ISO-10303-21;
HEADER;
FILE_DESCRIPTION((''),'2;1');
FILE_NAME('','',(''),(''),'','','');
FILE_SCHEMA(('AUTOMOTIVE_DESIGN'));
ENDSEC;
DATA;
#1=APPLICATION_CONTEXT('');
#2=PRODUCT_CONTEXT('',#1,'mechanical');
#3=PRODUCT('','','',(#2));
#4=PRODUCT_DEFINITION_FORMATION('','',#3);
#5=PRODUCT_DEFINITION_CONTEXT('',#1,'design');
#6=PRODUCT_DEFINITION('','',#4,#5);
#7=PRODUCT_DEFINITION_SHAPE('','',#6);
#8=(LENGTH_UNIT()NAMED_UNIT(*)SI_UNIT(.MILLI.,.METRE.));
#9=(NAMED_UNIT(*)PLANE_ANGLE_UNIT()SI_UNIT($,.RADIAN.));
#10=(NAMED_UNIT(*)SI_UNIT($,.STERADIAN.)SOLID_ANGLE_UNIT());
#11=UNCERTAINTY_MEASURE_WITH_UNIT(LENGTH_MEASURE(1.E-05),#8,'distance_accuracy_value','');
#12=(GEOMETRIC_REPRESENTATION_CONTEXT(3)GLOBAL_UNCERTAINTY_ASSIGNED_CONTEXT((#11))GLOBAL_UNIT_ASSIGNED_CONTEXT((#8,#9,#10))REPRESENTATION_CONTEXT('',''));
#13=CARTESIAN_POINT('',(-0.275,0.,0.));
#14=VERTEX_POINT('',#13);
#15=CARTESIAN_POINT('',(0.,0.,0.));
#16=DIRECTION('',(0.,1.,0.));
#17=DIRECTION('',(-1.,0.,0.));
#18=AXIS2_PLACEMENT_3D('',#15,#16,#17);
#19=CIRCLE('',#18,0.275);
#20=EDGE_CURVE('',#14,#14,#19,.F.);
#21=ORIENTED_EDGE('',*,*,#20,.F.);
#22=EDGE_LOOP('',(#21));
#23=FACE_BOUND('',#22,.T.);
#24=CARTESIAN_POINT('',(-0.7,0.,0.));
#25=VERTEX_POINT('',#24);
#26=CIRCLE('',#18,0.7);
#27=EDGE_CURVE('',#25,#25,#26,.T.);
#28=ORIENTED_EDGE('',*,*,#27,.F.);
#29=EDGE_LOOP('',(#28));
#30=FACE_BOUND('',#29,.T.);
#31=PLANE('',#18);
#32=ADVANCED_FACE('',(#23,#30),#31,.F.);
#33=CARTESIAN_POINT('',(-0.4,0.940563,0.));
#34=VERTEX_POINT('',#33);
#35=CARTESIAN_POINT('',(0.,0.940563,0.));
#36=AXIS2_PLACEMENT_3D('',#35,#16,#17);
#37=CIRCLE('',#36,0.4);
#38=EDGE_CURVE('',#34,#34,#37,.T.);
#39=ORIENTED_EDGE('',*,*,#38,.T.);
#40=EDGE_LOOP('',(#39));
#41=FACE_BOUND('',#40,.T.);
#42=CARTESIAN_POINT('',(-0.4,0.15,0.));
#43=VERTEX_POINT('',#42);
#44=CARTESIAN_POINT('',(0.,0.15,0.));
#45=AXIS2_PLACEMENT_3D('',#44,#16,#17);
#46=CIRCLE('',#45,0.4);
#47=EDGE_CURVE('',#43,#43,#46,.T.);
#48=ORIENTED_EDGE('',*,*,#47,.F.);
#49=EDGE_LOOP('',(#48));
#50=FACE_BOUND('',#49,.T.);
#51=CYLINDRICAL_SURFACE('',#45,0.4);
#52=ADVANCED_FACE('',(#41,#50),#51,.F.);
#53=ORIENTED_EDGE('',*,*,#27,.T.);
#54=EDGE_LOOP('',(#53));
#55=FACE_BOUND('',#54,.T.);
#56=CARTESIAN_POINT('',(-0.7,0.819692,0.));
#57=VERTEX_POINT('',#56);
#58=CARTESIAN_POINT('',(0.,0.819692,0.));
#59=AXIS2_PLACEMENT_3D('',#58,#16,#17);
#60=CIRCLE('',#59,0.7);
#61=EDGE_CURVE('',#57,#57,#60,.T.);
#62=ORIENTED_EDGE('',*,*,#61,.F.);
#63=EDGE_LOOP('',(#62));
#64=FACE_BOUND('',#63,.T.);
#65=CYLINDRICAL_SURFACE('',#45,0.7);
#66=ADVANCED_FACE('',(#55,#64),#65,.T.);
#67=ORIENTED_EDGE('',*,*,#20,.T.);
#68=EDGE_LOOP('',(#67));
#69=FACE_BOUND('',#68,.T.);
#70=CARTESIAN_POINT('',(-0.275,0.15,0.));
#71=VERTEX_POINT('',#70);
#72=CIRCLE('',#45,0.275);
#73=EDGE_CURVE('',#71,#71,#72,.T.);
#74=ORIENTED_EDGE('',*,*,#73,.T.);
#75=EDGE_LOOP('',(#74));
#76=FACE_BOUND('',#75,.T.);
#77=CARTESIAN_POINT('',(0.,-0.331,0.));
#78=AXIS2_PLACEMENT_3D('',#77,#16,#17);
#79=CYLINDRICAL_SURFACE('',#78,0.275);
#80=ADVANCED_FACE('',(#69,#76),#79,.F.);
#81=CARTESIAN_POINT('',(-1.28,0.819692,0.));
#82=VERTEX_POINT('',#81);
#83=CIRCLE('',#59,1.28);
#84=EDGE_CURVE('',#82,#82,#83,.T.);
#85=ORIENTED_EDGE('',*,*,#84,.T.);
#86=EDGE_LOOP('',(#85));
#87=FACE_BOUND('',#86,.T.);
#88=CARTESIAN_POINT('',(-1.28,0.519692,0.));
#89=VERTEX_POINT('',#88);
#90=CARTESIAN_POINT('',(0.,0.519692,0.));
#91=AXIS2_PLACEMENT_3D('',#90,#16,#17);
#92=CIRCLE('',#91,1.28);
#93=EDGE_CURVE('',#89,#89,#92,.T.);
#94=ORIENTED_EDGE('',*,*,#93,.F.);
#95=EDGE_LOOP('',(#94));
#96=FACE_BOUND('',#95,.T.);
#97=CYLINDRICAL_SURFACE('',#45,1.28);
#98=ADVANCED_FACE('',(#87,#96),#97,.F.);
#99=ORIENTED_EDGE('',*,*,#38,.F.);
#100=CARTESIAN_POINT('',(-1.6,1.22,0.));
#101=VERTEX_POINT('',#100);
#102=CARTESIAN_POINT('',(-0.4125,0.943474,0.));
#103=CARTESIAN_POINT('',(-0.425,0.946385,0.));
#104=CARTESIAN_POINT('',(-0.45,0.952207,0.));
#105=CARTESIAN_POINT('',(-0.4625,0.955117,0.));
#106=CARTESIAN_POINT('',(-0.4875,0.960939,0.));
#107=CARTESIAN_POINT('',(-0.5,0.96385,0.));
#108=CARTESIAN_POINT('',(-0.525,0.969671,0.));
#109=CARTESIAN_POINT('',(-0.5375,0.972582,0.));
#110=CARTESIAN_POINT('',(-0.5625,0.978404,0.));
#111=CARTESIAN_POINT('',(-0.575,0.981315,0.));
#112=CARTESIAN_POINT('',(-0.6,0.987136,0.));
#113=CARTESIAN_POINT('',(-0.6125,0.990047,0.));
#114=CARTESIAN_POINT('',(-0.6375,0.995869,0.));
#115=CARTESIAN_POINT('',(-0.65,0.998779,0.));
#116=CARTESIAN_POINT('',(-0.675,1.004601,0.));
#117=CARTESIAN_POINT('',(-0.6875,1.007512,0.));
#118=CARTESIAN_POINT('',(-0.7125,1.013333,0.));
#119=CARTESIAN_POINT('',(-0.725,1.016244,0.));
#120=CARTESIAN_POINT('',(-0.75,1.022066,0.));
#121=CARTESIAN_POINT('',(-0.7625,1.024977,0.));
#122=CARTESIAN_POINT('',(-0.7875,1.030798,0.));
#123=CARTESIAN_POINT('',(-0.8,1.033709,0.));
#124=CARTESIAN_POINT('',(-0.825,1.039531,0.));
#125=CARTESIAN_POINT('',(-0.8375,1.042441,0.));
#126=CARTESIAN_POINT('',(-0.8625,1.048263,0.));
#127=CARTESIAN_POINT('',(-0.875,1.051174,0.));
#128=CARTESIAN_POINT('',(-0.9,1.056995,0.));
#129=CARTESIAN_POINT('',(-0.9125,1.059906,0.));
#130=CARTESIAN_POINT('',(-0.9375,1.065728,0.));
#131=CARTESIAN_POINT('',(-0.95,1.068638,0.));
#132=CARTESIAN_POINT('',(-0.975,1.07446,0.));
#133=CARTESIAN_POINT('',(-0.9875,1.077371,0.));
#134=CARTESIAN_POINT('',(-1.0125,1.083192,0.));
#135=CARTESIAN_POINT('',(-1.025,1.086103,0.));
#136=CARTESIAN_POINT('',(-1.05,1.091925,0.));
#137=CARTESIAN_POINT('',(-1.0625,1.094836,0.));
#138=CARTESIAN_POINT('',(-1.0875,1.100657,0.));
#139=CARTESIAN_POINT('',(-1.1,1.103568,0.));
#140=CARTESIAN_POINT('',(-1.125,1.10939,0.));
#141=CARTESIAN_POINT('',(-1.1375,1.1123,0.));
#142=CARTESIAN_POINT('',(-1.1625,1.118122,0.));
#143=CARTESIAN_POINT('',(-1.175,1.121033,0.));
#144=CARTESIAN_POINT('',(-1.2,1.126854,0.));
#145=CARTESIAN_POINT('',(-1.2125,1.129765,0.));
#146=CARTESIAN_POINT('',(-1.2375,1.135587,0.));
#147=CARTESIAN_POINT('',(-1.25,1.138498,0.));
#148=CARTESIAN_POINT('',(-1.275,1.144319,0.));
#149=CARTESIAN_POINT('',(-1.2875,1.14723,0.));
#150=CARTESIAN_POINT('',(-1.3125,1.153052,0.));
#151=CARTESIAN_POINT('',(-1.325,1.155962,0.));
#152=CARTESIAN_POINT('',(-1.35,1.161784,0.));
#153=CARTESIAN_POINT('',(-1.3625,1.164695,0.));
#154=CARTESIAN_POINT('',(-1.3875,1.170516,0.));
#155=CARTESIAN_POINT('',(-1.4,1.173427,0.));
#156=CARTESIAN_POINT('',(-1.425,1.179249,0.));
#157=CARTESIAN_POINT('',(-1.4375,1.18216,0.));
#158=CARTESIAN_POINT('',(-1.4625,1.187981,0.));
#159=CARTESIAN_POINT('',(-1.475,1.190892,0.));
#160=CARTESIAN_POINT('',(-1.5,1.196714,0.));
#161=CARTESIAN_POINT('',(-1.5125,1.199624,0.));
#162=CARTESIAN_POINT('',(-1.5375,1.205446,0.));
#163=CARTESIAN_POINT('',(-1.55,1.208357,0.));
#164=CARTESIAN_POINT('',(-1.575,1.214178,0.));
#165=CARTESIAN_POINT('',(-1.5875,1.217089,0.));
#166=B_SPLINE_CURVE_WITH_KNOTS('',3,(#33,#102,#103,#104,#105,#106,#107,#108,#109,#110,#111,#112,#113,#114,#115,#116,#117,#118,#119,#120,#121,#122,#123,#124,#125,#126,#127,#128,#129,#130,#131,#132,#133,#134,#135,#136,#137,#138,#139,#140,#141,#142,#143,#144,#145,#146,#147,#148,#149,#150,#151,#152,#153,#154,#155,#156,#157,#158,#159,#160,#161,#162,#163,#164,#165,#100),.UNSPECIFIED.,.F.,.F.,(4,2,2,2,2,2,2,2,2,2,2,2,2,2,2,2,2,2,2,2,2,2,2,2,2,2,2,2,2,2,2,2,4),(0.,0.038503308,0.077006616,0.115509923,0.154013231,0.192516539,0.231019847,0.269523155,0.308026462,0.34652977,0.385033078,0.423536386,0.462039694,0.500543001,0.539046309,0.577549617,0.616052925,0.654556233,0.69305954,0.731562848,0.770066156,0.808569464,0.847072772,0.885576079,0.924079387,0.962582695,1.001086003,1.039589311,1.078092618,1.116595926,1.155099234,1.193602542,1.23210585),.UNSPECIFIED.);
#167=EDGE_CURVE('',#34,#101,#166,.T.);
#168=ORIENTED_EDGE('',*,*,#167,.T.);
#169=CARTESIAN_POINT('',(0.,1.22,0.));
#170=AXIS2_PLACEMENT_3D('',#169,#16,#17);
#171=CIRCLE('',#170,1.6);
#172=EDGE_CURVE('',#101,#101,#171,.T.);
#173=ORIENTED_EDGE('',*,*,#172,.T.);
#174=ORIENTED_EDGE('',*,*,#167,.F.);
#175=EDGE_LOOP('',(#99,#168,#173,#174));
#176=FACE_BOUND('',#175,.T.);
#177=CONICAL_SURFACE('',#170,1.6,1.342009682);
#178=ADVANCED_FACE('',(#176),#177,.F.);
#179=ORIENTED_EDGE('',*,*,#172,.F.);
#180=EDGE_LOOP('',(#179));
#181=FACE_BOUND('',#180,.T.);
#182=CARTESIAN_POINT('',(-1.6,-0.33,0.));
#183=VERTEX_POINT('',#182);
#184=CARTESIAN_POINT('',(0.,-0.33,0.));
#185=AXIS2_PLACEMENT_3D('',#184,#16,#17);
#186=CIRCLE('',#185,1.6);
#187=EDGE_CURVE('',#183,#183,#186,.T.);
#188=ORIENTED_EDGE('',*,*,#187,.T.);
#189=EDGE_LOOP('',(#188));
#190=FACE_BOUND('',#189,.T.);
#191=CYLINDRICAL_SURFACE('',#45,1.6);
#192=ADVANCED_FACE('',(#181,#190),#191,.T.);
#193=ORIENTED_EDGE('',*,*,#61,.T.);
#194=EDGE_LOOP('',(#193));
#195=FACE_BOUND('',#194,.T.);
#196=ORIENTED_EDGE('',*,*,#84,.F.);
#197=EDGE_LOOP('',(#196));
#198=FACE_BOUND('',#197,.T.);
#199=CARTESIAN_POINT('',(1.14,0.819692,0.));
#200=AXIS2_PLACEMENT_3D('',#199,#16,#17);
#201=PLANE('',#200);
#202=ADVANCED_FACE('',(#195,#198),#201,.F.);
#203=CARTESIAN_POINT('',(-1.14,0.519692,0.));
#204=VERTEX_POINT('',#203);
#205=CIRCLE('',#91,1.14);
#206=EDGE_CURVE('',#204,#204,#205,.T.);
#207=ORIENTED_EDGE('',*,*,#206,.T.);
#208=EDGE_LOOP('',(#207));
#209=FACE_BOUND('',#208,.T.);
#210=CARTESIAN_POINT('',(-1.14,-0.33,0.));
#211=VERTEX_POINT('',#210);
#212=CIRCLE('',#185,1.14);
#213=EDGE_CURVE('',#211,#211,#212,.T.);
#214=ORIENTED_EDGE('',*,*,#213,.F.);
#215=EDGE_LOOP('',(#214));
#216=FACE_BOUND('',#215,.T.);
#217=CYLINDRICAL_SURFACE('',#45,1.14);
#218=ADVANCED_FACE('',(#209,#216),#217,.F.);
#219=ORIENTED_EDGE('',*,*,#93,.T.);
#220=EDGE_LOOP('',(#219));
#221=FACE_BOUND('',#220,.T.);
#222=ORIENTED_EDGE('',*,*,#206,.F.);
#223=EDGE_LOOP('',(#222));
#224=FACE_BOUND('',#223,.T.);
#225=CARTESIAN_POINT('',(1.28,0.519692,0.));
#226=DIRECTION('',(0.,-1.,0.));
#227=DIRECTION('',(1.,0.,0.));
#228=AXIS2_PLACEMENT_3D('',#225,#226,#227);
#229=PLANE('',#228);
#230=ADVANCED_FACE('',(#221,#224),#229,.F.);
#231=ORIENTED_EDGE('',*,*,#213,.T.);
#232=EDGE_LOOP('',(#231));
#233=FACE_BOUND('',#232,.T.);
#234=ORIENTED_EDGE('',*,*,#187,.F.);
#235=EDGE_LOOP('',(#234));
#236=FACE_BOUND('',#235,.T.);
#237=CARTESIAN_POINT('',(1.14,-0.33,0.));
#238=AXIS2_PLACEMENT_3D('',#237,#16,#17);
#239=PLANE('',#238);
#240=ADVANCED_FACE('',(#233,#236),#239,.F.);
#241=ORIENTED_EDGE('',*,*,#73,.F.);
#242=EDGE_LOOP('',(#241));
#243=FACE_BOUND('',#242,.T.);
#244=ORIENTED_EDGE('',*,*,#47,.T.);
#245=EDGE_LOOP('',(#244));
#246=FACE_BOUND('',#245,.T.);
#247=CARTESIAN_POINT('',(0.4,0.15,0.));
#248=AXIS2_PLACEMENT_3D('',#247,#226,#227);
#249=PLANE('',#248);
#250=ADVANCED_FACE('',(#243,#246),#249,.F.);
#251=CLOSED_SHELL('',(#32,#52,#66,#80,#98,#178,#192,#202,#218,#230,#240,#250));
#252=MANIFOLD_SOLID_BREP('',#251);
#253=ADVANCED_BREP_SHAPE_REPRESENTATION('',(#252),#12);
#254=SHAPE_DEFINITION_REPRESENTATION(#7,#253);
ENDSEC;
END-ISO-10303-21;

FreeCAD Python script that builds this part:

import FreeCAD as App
import Part
import Sketcher

V = App.Vector

doc = App.newDocument("Part")
body = doc.addObject("PartDesign::Body", "Body")

# Sketch on XY plane
sketch1 = body.newObject("Sketcher::SketchObject", "Sketch")
sketch1.AttachmentSupport = (doc.getObject("XY_Plane"), [""])
sketch1.MapMode = "FlatFace"
sketch1.addGeometry([
    Part.LineSegment(V(0, 0, 0), V(0.7, 0, 0)),  # 0
    Part.LineSegment(V(0.7, 0, 0), V(0.7, 0.82, 0)),  # 1
    Part.LineSegment(V(0.7, 0.82, 0), V(1.28, 0.82, 0)),  # 2
    Part.LineSegment(V(1.28, 0.82, 0), V(1.28, 0.52, 0)),  # 3
    Part.LineSegment(V(1.28, 0.52, 0), V(1.14, 0.52, 0)),  # 4
    Part.LineSegment(V(1.14, 0.52, 0), V(1.14, -0.33, 0)),  # 5
    Part.LineSegment(V(1.14, -0.33, 0), V(1.6, -0.33, 0)),  # 6
    Part.LineSegment(V(1.6, -0.33, 0), V(1.6, 1.22, 0)),  # 7
    Part.LineSegment(V(1.6, 1.22, 0), V(0.4, 0.94, 0)),  # 8
    Part.LineSegment(V(0.4, 0.94, 0), V(0.4, 0.15, 0)),  # 9
    Part.LineSegment(V(0.4, 0.15, 0), V(0, 0.15, 0)),  # 10
    Part.LineSegment(V(0, 0.15, 0), V(0, 0, 0)),  # 11
], False)
sketch1.addConstraint([
    Sketcher.Constraint("Coincident", 0, 2, 1, 1),
    Sketcher.Constraint("Coincident", 1, 2, 2, 1),
    Sketcher.Constraint("Coincident", 2, 2, 3, 1),
    Sketcher.Constraint("Coincident", 3, 2, 4, 1),
    Sketcher.Constraint("Coincident", 4, 2, 5, 1),
    Sketcher.Constraint("Coincident", 5, 2, 6, 1),
    Sketcher.Constraint("Coincident", 6, 2, 7, 1),
    Sketcher.Constraint("Coincident", 7, 2, 8, 1),
    Sketcher.Constraint("Coincident", 8, 2, 9, 1),
    Sketcher.Constraint("Coincident", 9, 2, 10, 1),
    Sketcher.Constraint("Coincident", 10, 2, 11, 1),
    Sketcher.Constraint("Coincident", 11, 2, 0, 1),
    Sketcher.Constraint("Horizontal", 0),
    Sketcher.Constraint("Vertical", 1),
    Sketcher.Constraint("Horizontal", 2),
    Sketcher.Constraint("Vertical", 3),
    Sketcher.Constraint("Horizontal", 4),
    Sketcher.Constraint("Vertical", 5),
    Sketcher.Constraint("Horizontal", 6),
    Sketcher.Constraint("Vertical", 7),
    Sketcher.Constraint("Vertical", 9),
    Sketcher.Constraint("Horizontal", 10),
    Sketcher.Constraint("Vertical", 11),
    Sketcher.Constraint("Coincident", 11, 2, -1, 1),
    Sketcher.Constraint("DistanceX", 0, 1, 0, 2, 0.7),
    Sketcher.Constraint("DistanceX", 10, 2, 10, 1, 0.4),
    Sketcher.Constraint("DistanceY", 3, 2, 3, 1, 0.3),
    Sketcher.Constraint("DistanceX", 2, 1, 2, 2, 0.58),
    Sketcher.Constraint("DistanceX", 4, 2, 4, 1, 0.14),
    Sketcher.Constraint("DistanceX", 6, 1, 6, 2, 0.46),
    Sketcher.Constraint("DistanceY", 7, 1, 7, 2, 1.55),
    Sketcher.Constraint("DistanceY", 11, 2, 11, 1, 0.15),
    Sketcher.Constraint("DistanceY", 5, 2, -1, 1, 0.33),
    Sketcher.Constraint("DistanceY", 1, 1, 1, 2, 0.819692),
    Sketcher.Constraint("DistanceY", 9, 2, 9, 1, 0.790563),
])
revolution = body.newObject("PartDesign::Revolution", "Revolution")
revolution.Profile = sketch1
revolution.ReferenceAxis = (sketch1, ["V_Axis"])
revolution.Angle = 360

# Sketch on XZ plane
sketch2 = body.newObject("Sketcher::SketchObject", "Sketch001")
sketch2.AttachmentSupport = (doc.getObject("XZ_Plane"), [""])
sketch2.MapMode = "FlatFace"
sketch2.AttachmentOffset = App.Placement(V(0, 0, -0.15), App.Rotation())
sketch2.addGeometry(Part.Circle(V(0, 0, 0), V(0, 0, 1), 0.28), False)
sketch2.addConstraint([
    Sketcher.Constraint("Coincident", 0, 3, -1, 1),
    Sketcher.Constraint("Diameter", 0, 0.55),
])
pocket1 = body.newObject("PartDesign::Pocket", "Pocket")
pocket1.Profile = sketch2
pocket1.Type = "UpToFirst"
pocket1.Reversed = True

doc.recompute()
